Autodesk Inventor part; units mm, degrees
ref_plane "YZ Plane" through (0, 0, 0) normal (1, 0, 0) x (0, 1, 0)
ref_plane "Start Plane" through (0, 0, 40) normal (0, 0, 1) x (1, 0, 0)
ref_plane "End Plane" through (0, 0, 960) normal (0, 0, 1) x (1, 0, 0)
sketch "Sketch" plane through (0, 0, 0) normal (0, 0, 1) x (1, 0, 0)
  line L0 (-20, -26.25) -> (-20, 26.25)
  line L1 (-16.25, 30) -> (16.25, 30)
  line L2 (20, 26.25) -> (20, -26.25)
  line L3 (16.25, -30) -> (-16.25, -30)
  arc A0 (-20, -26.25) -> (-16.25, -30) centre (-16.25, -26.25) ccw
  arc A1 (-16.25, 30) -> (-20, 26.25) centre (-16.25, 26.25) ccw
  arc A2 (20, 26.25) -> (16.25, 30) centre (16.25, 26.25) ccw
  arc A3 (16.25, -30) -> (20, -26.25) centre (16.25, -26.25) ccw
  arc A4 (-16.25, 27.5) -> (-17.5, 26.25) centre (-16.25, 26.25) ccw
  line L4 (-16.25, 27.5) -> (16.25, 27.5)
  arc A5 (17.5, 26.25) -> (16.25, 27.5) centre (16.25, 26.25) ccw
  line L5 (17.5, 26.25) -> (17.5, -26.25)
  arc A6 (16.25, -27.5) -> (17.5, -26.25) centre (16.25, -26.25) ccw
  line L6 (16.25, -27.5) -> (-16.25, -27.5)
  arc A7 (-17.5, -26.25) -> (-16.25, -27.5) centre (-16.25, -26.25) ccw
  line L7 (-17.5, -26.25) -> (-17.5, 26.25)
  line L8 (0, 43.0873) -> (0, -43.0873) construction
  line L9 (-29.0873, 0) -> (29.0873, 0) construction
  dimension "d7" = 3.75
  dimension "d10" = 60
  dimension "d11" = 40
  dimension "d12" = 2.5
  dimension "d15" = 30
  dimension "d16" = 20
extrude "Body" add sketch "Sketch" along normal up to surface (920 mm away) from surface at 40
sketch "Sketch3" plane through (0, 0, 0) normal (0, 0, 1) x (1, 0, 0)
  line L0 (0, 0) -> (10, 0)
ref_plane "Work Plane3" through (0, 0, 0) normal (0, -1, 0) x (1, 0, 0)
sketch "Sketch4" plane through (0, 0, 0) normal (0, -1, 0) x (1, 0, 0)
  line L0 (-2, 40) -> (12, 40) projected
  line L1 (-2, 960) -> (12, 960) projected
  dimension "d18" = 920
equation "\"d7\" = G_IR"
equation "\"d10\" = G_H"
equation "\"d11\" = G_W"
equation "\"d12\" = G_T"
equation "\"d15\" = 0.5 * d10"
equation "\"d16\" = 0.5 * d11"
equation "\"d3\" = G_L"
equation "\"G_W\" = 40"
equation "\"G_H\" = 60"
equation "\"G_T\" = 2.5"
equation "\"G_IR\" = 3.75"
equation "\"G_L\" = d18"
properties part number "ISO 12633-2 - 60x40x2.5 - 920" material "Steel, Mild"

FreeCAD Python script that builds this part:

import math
import FreeCAD as App
import Part
import Sketcher
from FreeCAD import Vector
Q = App.Units.Quantity

doc = App.newDocument("Part")
params = doc.addObject("Spreadsheet::Sheet", "Params")
for row, (alias, value) in enumerate([
    ("sketch1_radius", "3.75 mm"),
    ("sketch1_radius2", "1.25 mm"),
    ("pad1_length", "920 mm"),
], start=1):
    params.set(f"A{row}", alias)
    params.set(f"B{row}", "=" + value)
    params.setAlias(f"B{row}", alias)

body = doc.addObject("PartDesign::Body", "Body")

sketch1 = body.newObject("Sketcher::SketchObject", "Sketch")
sketch1.AttachmentSupport = (doc.getObject("XY_Plane"), [""])
sketch1.MapMode = "FlatFace"
sketch1.AttachmentOffset = App.Placement(Vector(0, 0, 40), App.Rotation())
sketch1.addGeometry(Part.LineSegment(Vector(-20, 26.25, 0), Vector(-20, -26.25, 0)), False)
sketch1.addGeometry(Part.ArcOfCircle(Part.Circle(Vector(-16.25, -26.25, 0), Vector(0, 0, 1), 3.75), math.radians(180), math.radians(270)), False)
sketch1.addGeometry(Part.LineSegment(Vector(-16.25, -30, 0), Vector(16.25, -30, 0)), False)
sketch1.addGeometry(Part.ArcOfCircle(Part.Circle(Vector(16.25, -26.25, 0), Vector(0, 0, 1), 3.75), math.radians(-90), math.radians(0)), False)
sketch1.addGeometry(Part.LineSegment(Vector(20, -26.25, 0), Vector(20, 26.25, 0)), False)
sketch1.addGeometry(Part.ArcOfCircle(Part.Circle(Vector(16.25, 26.25, 0), Vector(0, 0, 1), 3.75), math.radians(0), math.radians(90)), False)
sketch1.addGeometry(Part.LineSegment(Vector(16.25, 30, 0), Vector(-16.25, 30, 0)), False)
sketch1.addGeometry(Part.ArcOfCircle(Part.Circle(Vector(-16.25, 26.25, 0), Vector(0, 0, 1), 3.75), math.radians(90), math.radians(180)), False)
sketch1.addGeometry(Part.ArcOfCircle(Part.Circle(Vector(-16.25, 26.25, 0), Vector(0, 0, 1), 1.25), math.radians(90), math.radians(180)), False)
sketch1.addGeometry(Part.LineSegment(Vector(-16.25, 27.5, 0), Vector(16.25, 27.5, 0)), False)
sketch1.addGeometry(Part.ArcOfCircle(Part.Circle(Vector(16.25, 26.25, 0), Vector(0, 0, 1), 1.25), math.radians(0), math.radians(90)), False)
sketch1.addGeometry(Part.LineSegment(Vector(17.5, 26.25, 0), Vector(17.5, -26.25, 0)), False)
sketch1.addGeometry(Part.ArcOfCircle(Part.Circle(Vector(16.25, -26.25, 0), Vector(0, 0, 1), 1.25), math.radians(-90), math.radians(0)), False)
sketch1.addGeometry(Part.LineSegment(Vector(16.25, -27.5, 0), Vector(-16.25, -27.5, 0)), False)
sketch1.addGeometry(Part.ArcOfCircle(Part.Circle(Vector(-16.25, -26.25, 0), Vector(0, 0, 1), 1.25), math.radians(180), math.radians(270)), False)
sketch1.addGeometry(Part.LineSegment(Vector(-17.5, -26.25, 0), Vector(-17.5, 26.25, 0)), False)
sketch1.addConstraint(Sketcher.Constraint("Tangent", 0, 2, 1, 1))
sketch1.addConstraint(Sketcher.Constraint("Tangent", 1, 2, 2, 1))
sketch1.addConstraint(Sketcher.Constraint("Tangent", 2, 2, 3, 1))
sketch1.addConstraint(Sketcher.Constraint("Tangent", 3, 2, 4, 1))
sketch1.addConstraint(Sketcher.Constraint("Tangent", 4, 2, 5, 1))
sketch1.addConstraint(Sketcher.Constraint("Tangent", 5, 2, 6, 1))
sketch1.addConstraint(Sketcher.Constraint("Tangent", 6, 2, 7, 1))
sketch1.addConstraint(Sketcher.Constraint("Tangent", 7, 2, 0, 1))
sketch1.addConstraint(Sketcher.Constraint("Tangent", 8, 1, 9, 1))
sketch1.addConstraint(Sketcher.Constraint("Tangent", 9, 2, 10, 2))
sketch1.addConstraint(Sketcher.Constraint("Tangent", 10, 1, 11, 1))
sketch1.addConstraint(Sketcher.Constraint("Tangent", 11, 2, 12, 2))
sketch1.addConstraint(Sketcher.Constraint("Tangent", 12, 1, 13, 1))
sketch1.addConstraint(Sketcher.Constraint("Tangent", 13, 2, 14, 2))
sketch1.addConstraint(Sketcher.Constraint("Tangent", 14, 1, 15, 1))
sketch1.addConstraint(Sketcher.Constraint("Tangent", 15, 2, 8, 2))
sketch1.addConstraint(Sketcher.Constraint("Vertical", 0))
sketch1.addConstraint(Sketcher.Constraint("Horizontal", 2))
sketch1.addConstraint(Sketcher.Constraint("Vertical", 4))
sketch1.addConstraint(Sketcher.Constraint("Horizontal", 6))
sketch1.addConstraint(Sketcher.Constraint("Horizontal", 9))
sketch1.addConstraint(Sketcher.Constraint("Vertical", 11))
sketch1.addConstraint(Sketcher.Constraint("Horizontal", 13))
sketch1.addConstraint(Sketcher.Constraint("Vertical", 15))
sketch1.addConstraint(Sketcher.Constraint("Coincident", 8, 3, 7, 3))
sketch1.addConstraint(Sketcher.Constraint("Coincident", 10, 3, 5, 3))
sketch1.addConstraint(Sketcher.Constraint("Coincident", 12, 3, 3, 3))
sketch1.addConstraint(Sketcher.Constraint("Equal", 1, 3))
sketch1.addConstraint(Sketcher.Constraint("Equal", 3, 5))
sketch1.addConstraint(Sketcher.Constraint("Equal", 5, 7))
sketch1.addConstraint(Sketcher.Constraint("Equal", 12, 14))
sketch1.addConstraint(Sketcher.Constraint("Symmetric", 1, 3, 5, 3, -1, 1))
sketch1.addConstraint(Sketcher.Constraint("Radius", 1, Q("3.75 mm")))
sketch1.addConstraint(Sketcher.Constraint("Radius", 8, Q("1.25 mm")))
sketch1.addConstraint(Sketcher.Constraint("DistanceX", 0, 2, -1, 1, Q("20 mm")))
sketch1.addConstraint(Sketcher.Constraint("DistanceY", 1, 2, -1, 1, Q("30 mm")))
sketch1.setExpression("Constraints[32]", "Params.sketch1_radius")
sketch1.setExpression("Constraints[33]", "Params.sketch1_radius2")
pad1 = body.newObject("PartDesign::Pad", "Pad")
pad1.Profile = sketch1
pad1.setExpression("Length", "Params.pad1_length")

doc.recompute()
